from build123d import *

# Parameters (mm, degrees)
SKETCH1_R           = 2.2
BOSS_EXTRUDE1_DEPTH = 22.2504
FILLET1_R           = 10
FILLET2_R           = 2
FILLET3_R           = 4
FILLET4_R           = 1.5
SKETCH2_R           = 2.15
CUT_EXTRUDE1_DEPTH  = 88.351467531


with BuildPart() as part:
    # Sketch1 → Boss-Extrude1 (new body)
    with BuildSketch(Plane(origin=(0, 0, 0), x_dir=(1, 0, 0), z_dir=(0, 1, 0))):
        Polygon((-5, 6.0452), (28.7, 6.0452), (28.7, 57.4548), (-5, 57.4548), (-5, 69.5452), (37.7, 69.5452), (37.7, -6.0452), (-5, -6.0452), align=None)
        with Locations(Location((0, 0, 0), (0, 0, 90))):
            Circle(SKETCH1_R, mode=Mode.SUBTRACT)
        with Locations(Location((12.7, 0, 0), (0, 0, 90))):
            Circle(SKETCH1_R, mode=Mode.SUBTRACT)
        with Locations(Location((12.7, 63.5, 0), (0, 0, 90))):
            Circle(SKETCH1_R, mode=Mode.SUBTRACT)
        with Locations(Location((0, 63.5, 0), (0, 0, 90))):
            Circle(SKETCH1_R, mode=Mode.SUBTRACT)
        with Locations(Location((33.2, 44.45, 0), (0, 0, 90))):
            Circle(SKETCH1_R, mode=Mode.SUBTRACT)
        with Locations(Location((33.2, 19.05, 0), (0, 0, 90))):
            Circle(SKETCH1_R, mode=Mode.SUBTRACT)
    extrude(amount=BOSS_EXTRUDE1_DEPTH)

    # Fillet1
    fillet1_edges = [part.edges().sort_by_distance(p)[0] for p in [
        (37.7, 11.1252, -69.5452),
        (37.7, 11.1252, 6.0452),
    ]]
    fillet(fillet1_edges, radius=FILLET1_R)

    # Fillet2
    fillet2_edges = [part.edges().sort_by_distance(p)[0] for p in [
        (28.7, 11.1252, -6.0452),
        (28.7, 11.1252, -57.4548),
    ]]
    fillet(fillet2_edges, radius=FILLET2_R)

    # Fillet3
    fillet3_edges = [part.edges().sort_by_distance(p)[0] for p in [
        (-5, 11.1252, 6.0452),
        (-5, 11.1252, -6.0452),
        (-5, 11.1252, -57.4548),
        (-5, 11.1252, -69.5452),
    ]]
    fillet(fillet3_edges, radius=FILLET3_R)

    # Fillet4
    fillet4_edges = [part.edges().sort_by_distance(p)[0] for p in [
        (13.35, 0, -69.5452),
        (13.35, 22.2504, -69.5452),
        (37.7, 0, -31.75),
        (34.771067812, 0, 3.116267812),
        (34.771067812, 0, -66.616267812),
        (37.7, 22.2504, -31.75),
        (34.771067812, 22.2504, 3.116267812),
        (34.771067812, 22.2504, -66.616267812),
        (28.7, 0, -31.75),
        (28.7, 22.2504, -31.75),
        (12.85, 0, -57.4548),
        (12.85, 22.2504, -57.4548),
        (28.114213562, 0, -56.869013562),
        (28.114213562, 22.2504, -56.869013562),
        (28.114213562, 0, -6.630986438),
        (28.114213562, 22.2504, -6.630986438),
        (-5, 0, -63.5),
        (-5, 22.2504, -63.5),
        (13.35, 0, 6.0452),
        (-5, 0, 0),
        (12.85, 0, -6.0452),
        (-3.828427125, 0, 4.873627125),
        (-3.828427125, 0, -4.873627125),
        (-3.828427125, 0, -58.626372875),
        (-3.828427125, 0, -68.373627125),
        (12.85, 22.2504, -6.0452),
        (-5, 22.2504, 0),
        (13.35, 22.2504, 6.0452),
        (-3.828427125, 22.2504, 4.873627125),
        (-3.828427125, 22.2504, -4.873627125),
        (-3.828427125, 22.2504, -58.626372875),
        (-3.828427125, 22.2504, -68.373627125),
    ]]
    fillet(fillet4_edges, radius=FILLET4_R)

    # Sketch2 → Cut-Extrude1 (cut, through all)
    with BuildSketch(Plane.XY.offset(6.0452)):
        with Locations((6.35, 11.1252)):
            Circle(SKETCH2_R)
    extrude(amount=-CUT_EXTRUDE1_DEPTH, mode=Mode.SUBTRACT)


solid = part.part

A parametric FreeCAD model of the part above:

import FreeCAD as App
import Part
import Sketcher
Q = App.Units.Quantity


def edges_at(feature, points):
    """Names of the edges that pass closest to the given points."""
    edges = feature.Shape.Edges
    near = lambda p: min(range(len(edges)), key=lambda i: edges[i].distToShape(Part.Vertex(*p))[0])
    return sorted({f"Edge{near(p) + 1}" for p in points})

doc = App.newDocument("Part")
body = doc.addObject("PartDesign::Body", "Body")

# Sketch on XZ plane
sketch1 = body.newObject("Sketcher::SketchObject", "Sketch")
sketch1.AttachmentSupport = (doc.getObject("XZ_Plane"), [""])
sketch1.MapMode = "FlatFace"
sketch1.addGeometry([
    Part.LineSegment(App.Vector(28.7, -6, 0), App.Vector(-5, -6, 0)),  # 0
    Part.LineSegment(App.Vector(-5, -6, 0), App.Vector(-5, 6, 0)),  # 1
    Part.LineSegment(App.Vector(-5, 6, 0), App.Vector(37.7, 6, 0)),  # 2
    Part.LineSegment(App.Vector(37.7, 6, 0), App.Vector(37.7, -69.5, 0)),  # 3
    Part.LineSegment(App.Vector(37.7, -69.5, 0), App.Vector(-5, -69.5, 0)),  # 4
    Part.LineSegment(App.Vector(-5, -69.5, 0), App.Vector(-5, -57.5, 0)),  # 5
    Part.LineSegment(App.Vector(-5, -57.5, 0), App.Vector(28.7, -57.5, 0)),  # 6
    Part.LineSegment(App.Vector(28.7, -57.5, 0), App.Vector(28.7, -6, 0)),  # 7
    Part.Circle(App.Vector(33.2, -19.1, 0), App.Vector(0, 0, 1), 2.2),  # 8
    Part.Circle(App.Vector(12.7, 0, 0), App.Vector(0, 0, 1), 2.2),  # 9
    Part.Circle(App.Vector(0, 0, 0), App.Vector(0, 0, 1), 2.2),  # 10
    Part.Circle(App.Vector(33.2, -44.5, 0), App.Vector(0, 0, 1), 2.2),  # 11
    Part.Circle(App.Vector(12.7, -63.5, 0), App.Vector(0, 0, 1), 2.2),  # 12
    Part.Circle(App.Vector(0, -63.5, 0), App.Vector(0, 0, 1), 2.2),  # 13
], False)
sketch1.addConstraint([
    Sketcher.Constraint("Coincident", 0, 2, 1, 1),
    Sketcher.Constraint("Coincident", 1, 2, 2, 1),
    Sketcher.Constraint("Coincident", 2, 2, 3, 1),
    Sketcher.Constraint("Coincident", 3, 2, 4, 1),
    Sketcher.Constraint("Coincident", 4, 2, 5, 1),
    Sketcher.Constraint("Coincident", 5, 2, 6, 1),
    Sketcher.Constraint("Coincident", 6, 2, 7, 1),
    Sketcher.Constraint("Coincident", 7, 2, 0, 1),
    Sketcher.Constraint("Horizontal", 0),
    Sketcher.Constraint("Vertical", 1),
    Sketcher.Constraint("Horizontal", 2),
    Sketcher.Constraint("Vertical", 3),
    Sketcher.Constraint("Horizontal", 4),
    Sketcher.Constraint("Vertical", 5),
    Sketcher.Constraint("Horizontal", 6),
    Sketcher.Constraint("Vertical", 7),
    Sketcher.Constraint("Coincident", 10, 3, -1, 1),
    Sketcher.Constraint("Equal", 8, 9),
    Sketcher.Constraint("Equal", 9, 10),
    Sketcher.Constraint("Equal", 10, 11),
    Sketcher.Constraint("Equal", 11, 12),
    Sketcher.Constraint("Equal", 12, 13),
    Sketcher.Constraint("PointOnObject", 9, 3, -1),
    Sketcher.Constraint("PointOnObject", 13, 3, -2),
    Sketcher.Constraint("Horizontal", 12, 3, 13, 3),
    Sketcher.Constraint("Vertical", 8, 3, 11, 3),
    Sketcher.Constraint("Vertical", 9, 3, 12, 3),
    Sketcher.Constraint("Vertical", 1, 2, 4, 2),
    Sketcher.Constraint("Equal", 1, 5),
    Sketcher.Constraint("Diameter", 8, Q("4.4 mm")),
    Sketcher.Constraint("DistanceX", 0, 2, 0, 1, Q("33.7 mm")),
    Sketcher.Constraint("DistanceX", 2, 1, 2, 2, Q("42.7 mm")),
    Sketcher.Constraint("DistanceX", 0, 2, -1, 1, Q("5 mm")),
    Sketcher.Constraint("DistanceX", 9, 3, 2, 2, Q("25 mm")),
    Sketcher.Constraint("DistanceX", -1, 1, 8, 3, Q("33.2 mm")),
    Sketcher.Constraint("DistanceY", 12, 3, -1, 1, Q("63.5 mm")),
    Sketcher.Constraint("DistanceY", 11, 3, 8, 3, Q("25.4 mm")),
    Sketcher.Constraint("DistanceY", 8, 3, -1, 1, Q("19.05 mm")),
    Sketcher.Constraint("DistanceY", 1, 1, 1, 2, Q("12.0904 mm")),
    Sketcher.Constraint("DistanceY", 3, 2, 3, 1, Q("75.5904 mm")),
    Sketcher.Constraint("DistanceY", 0, 2, -1, 1, Q("6.0452 mm")),
])
pad1 = body.newObject("PartDesign::Pad", "Pad")
pad1.Profile = sketch1
pad1.Length = 22.2504
pad1.Reversed = True
doc.recompute()

fillet = body.newObject("PartDesign::Fillet", "Fillet")
fillet.Base = (pad1, edges_at(pad1, [(37.7, 11.125, -69.545), (37.7, 11.125, 6.045)]))
fillet.Radius = 10
doc.recompute()

fillet2 = body.newObject("PartDesign::Fillet", "Fillet001")
fillet2.Base = (fillet, edges_at(fillet, [(28.7, 11.125, -6.045), (28.7, 11.125, -57.455)]))
fillet2.Radius = 2
doc.recompute()

fillet3 = body.newObject("PartDesign::Fillet", "Fillet002")
fillet3.Base = (fillet2, edges_at(fillet2, [
    (-5, 11.125, 6.045),
    (-5, 11.125, -6.045),
    (-5, 11.125, -57.455),
    (-5, 11.125, -69.545),
]))
fillet3.Radius = 4
doc.recompute()

fillet4 = body.newObject("PartDesign::Fillet", "Fillet003")
fillet4.Base = (fillet3, edges_at(fillet3, [
    (13.35, 0, -69.545),
    (13.35, 22.25, -69.545),
    (37.7, 0, -31.75),
    (34.771, 0, 3.116),
    (34.771, 0, -66.616),
    (37.7, 22.25, -31.75),
    (34.771, 22.25, 3.116),
    (34.771, 22.25, -66.616),
    (28.7, 0, -31.75),
    (28.7, 22.25, -31.75),
    (12.85, 0, -57.455),
    (12.85, 22.25, -57.455),
    (28.114, 0, -56.869),
    (28.114, 22.25, -56.869),
    (28.114, 0, -6.631),
    (28.114, 22.25, -6.631),
    (-5, 0, -63.5),
    (-5, 22.25, -63.5),
    (13.35, 0, 6.045),
    (-5, 0, 0),
    (12.85, 0, -6.045),
    (-3.828, 0, 4.874),
    (-3.828, 0, -4.874),
    (-3.828, 0, -58.626),
    (-3.828, 0, -68.374),
    (12.85, 22.25, -6.045),
    (-5, 22.25, 0),
    (13.35, 22.25, 6.045),
    (-3.828, 22.25, 4.874),
    (-3.828, 22.25, -4.874),
    (-3.828, 22.25, -58.626),
    (-3.828, 22.25, -68.374),
]))
fillet4.Radius = 1.5

# Sketch on XY plane
sketch2 = body.newObject("Sketcher::SketchObject", "Sketch001")
sketch2.AttachmentSupport = (doc.getObject("XY_Plane"), [""])
sketch2.MapMode = "FlatFace"
sketch2.AttachmentOffset = App.Placement(App.Vector(0, 0, 6.0452), App.Rotation())
sketch2.addGeometry(Part.Circle(App.Vector(6.3, 11.1, 0), App.Vector(0, 0, 1), 2.1), False)
sketch2.addConstraint([
    Sketcher.Constraint("Diameter", 0, Q("4.3 mm")),
    Sketcher.Constraint("DistanceX", -1, 1, 0, 3, Q("6.35 mm")),
    Sketcher.Constraint("DistanceY", -1, 1, 0, 3, Q("11.1252 mm")),
])
pocket1 = body.newObject("PartDesign::Pocket", "Pocket")
pocket1.Profile = sketch2
pocket1.Type = "ThroughAll"

doc.recompute()
